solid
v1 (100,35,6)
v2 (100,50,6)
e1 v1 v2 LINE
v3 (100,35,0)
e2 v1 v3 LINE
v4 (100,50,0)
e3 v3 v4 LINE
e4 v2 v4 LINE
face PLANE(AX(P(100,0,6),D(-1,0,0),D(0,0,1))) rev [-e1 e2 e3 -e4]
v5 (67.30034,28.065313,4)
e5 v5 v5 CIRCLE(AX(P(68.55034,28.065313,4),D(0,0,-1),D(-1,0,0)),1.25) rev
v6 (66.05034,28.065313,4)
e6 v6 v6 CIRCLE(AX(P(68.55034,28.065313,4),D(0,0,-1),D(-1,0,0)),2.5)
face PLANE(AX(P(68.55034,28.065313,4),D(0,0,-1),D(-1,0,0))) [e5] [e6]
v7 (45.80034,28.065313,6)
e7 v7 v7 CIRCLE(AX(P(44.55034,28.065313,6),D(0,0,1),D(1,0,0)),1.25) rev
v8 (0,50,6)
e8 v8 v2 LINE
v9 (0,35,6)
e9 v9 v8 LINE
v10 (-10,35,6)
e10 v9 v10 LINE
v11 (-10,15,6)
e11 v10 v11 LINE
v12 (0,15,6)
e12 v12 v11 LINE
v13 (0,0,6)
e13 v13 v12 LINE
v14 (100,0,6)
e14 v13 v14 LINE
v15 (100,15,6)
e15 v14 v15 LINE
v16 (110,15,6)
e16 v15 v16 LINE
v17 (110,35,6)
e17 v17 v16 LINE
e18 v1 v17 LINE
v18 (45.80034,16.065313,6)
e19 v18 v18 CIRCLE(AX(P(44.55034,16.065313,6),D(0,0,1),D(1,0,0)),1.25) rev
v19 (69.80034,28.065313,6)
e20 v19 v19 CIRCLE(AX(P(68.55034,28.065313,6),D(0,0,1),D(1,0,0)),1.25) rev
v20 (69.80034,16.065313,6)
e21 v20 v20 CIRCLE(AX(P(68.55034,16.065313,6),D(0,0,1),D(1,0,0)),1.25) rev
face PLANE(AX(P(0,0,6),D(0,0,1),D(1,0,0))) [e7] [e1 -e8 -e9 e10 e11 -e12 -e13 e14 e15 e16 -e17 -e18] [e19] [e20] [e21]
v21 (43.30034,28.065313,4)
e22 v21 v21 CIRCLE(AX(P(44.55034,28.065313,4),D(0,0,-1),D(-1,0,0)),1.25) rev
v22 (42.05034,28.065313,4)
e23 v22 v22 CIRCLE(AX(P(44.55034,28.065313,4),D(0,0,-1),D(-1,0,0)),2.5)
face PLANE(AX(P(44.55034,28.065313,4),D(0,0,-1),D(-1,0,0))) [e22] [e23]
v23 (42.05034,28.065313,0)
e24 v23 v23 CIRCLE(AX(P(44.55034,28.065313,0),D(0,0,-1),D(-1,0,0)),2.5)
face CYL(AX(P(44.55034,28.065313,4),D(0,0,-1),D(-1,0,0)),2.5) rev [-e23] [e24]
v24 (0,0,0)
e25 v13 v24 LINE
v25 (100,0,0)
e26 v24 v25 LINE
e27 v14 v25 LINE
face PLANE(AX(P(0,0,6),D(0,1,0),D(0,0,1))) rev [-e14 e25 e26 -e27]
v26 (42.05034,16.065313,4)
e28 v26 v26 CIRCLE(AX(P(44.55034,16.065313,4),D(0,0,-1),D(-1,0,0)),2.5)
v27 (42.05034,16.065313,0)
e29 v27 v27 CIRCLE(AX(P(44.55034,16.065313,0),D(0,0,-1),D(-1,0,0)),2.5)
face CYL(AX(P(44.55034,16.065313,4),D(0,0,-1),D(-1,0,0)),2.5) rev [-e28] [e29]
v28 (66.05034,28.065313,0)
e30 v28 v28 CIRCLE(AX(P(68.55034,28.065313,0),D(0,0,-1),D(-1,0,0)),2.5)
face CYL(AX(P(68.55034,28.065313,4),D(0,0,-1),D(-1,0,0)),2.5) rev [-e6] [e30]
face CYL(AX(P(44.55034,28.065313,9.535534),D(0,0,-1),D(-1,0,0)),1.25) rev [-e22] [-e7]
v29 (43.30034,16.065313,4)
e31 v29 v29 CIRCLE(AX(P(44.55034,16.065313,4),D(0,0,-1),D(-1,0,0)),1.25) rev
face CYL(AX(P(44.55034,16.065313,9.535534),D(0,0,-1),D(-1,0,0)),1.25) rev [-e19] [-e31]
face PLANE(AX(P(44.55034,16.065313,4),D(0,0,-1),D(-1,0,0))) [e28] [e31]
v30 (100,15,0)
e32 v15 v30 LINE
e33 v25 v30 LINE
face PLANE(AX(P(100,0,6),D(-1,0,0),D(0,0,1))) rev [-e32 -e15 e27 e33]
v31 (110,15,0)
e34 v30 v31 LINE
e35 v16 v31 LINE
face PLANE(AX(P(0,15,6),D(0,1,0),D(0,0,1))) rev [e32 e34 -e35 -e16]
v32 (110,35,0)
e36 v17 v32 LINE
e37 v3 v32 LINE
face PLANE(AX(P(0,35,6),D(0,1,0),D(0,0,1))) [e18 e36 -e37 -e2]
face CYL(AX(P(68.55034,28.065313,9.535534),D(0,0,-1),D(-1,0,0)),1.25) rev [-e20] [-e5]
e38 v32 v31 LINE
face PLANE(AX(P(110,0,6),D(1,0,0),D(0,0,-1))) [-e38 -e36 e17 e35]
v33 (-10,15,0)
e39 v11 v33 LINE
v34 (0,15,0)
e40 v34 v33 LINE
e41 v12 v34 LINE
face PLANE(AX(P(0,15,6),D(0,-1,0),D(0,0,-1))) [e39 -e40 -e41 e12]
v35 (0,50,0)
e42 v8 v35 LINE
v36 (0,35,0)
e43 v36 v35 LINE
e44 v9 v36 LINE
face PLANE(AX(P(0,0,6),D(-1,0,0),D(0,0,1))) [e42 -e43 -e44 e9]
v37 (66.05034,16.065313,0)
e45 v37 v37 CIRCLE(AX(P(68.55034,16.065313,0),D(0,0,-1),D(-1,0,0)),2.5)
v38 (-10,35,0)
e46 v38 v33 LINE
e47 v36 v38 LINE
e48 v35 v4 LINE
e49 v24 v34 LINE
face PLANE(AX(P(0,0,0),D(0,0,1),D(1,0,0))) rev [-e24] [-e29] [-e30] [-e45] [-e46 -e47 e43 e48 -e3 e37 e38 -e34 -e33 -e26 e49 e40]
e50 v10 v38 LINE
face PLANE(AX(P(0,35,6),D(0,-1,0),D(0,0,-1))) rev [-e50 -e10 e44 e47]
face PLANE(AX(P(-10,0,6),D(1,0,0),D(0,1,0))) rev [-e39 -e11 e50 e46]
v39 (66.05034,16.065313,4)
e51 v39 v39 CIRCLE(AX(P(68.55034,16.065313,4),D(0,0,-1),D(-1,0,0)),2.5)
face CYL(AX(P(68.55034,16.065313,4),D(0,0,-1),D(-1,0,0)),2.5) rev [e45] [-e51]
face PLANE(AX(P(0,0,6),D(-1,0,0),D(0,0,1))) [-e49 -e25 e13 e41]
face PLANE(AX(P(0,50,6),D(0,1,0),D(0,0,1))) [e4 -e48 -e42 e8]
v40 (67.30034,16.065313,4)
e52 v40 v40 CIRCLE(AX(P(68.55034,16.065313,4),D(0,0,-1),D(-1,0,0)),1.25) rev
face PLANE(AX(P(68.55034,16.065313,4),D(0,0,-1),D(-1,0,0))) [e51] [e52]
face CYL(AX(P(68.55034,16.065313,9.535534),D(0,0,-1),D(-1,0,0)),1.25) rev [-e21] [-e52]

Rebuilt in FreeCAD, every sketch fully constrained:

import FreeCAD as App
import Part
import Sketcher
from FreeCAD import Vector

doc = App.newDocument("Part")
body = doc.addObject("PartDesign::Body", "Body")

# Sketch on XY plane
sketch1 = doc.addObject("Sketcher::SketchObject", "Sketch")
body.addObject(sketch1)
sketch1.AttachmentSupport = (doc.XY_Plane, [""])
sketch1.MapMode = "FlatFace"
sketch1.addGeometry([
    Part.LineSegment(Vector(-10, 35, 0), Vector(-10, 15, 0)),  # 0
    Part.LineSegment(Vector(-10, 15, 0), Vector(0, 15, 0)),  # 1
    Part.LineSegment(Vector(0, 15, 0), Vector(0, 0, 0)),  # 2
    Part.LineSegment(Vector(0, 0, 0), Vector(100, 0, 0)),  # 3
    Part.LineSegment(Vector(100, 0, 0), Vector(100, 15, 0)),  # 4
    Part.LineSegment(Vector(100, 15, 0), Vector(110, 15, 0)),  # 5
    Part.LineSegment(Vector(110, 15, 0), Vector(110, 35, 0)),  # 6
    Part.LineSegment(Vector(110, 35, 0), Vector(100, 35, 0)),  # 7
    Part.LineSegment(Vector(100, 35, 0), Vector(100, 50, 0)),  # 8
    Part.LineSegment(Vector(100, 50, 0), Vector(0, 50, 0)),  # 9
    Part.LineSegment(Vector(0, 50, 0), Vector(0, 35, 0)),  # 10
    Part.LineSegment(Vector(0, 35, 0), Vector(-10, 35, 0)),  # 11
], False)
sketch1.addConstraint([
    Sketcher.Constraint("Coincident", 0, 2, 1, 1),
    Sketcher.Constraint("Coincident", 1, 2, 2, 1),
    Sketcher.Constraint("Coincident", 2, 2, 3, 1),
    Sketcher.Constraint("Coincident", 3, 2, 4, 1),
    Sketcher.Constraint("Coincident", 4, 2, 5, 1),
    Sketcher.Constraint("Coincident", 5, 2, 6, 1),
    Sketcher.Constraint("Coincident", 6, 2, 7, 1),
    Sketcher.Constraint("Coincident", 7, 2, 8, 1),
    Sketcher.Constraint("Coincident", 8, 2, 9, 1),
    Sketcher.Constraint("Coincident", 9, 2, 10, 1),
    Sketcher.Constraint("Coincident", 10, 2, 11, 1),
    Sketcher.Constraint("Coincident", 11, 2, 0, 1),
    Sketcher.Constraint("Vertical", 0),
    Sketcher.Constraint("Horizontal", 1),
    Sketcher.Constraint("Vertical", 2),
    Sketcher.Constraint("Horizontal", 3),
    Sketcher.Constraint("Vertical", 4),
    Sketcher.Constraint("Horizontal", 5),
    Sketcher.Constraint("Vertical", 6),
    Sketcher.Constraint("Horizontal", 7),
    Sketcher.Constraint("Vertical", 8),
    Sketcher.Constraint("Horizontal", 9),
    Sketcher.Constraint("Vertical", 10),
    Sketcher.Constraint("Horizontal", 11),
    Sketcher.Constraint("Coincident", 2, 2, -1, 1),
    Sketcher.Constraint("PointOnObject", 9, 2, -2),
    Sketcher.Constraint("Horizontal", 1, 2, 4, 2),
    Sketcher.Constraint("Horizontal", 7, 2, 10, 2),
    Sketcher.Constraint("Vertical", 4, 2, 7, 2),
    Sketcher.Constraint("Equal", 1, 5),
    Sketcher.Constraint("Equal", 4, 8),
    Sketcher.Constraint("DistanceX", 1, 1, 1, 2, 10.0),
    Sketcher.Constraint("DistanceX", 3, 1, 3, 2, 100.0),
    Sketcher.Constraint("DistanceY", 0, 2, 0, 1, 20.0),
    Sketcher.Constraint("DistanceY", 2, 2, 2, 1, 15.0),
])
pad1 = doc.addObject("PartDesign::Pad", "Pad")
body.addObject(pad1)
pad1.Profile = sketch1
pad1.Length = 6

# Sketch on XY plane
sketch2 = doc.addObject("Sketcher::SketchObject", "Sketch001")
body.addObject(sketch2)
sketch2.AttachmentSupport = (doc.XY_Plane, [""])
sketch2.MapMode = "FlatFace"
sketch2.addGeometry([
    Part.Circle(Vector(44.6, 16.1, 0), Vector(0, 0, 1), 1.2),
    Part.Circle(Vector(44.6, 28.1, 0), Vector(0, 0, 1), 1.2),
    Part.Circle(Vector(68.6, 28.1, 0), Vector(0, 0, 1), 1.2),
    Part.Circle(Vector(68.6, 16.1, 0), Vector(0, 0, 1), 1.2),
], False)
sketch2.addConstraint([
    Sketcher.Constraint("Equal", 0, 1),
    Sketcher.Constraint("Equal", 1, 2),
    Sketcher.Constraint("Equal", 2, 3),
    Sketcher.Constraint("Horizontal", 1, 3, 2, 3),
    Sketcher.Constraint("Horizontal", 0, 3, 3, 3),
    Sketcher.Constraint("Vertical", 0, 3, 1, 3),
    Sketcher.Constraint("Vertical", 2, 3, 3, 3),
    Sketcher.Constraint("Diameter", 0, 2.5),
    Sketcher.Constraint("DistanceY", 0, 3, 1, 3, 12.0),
    Sketcher.Constraint("DistanceX", 1, 3, 2, 3, 24.0),
    Sketcher.Constraint("DistanceX", -1, 1, 0, 3, 44.55034),
    Sketcher.Constraint("DistanceY", -1, 1, 0, 3, 16.065313),
])
pocket1 = doc.addObject("PartDesign::Pocket", "Pocket")
body.addObject(pocket1)
pocket1.Profile = sketch2
pocket1.Length = 6
pocket1.Reversed = True

# Sketch on XY plane
sketch3 = doc.addObject("Sketcher::SketchObject", "Sketch002")
body.addObject(sketch3)
sketch3.AttachmentSupport = (doc.XY_Plane, [""])
sketch3.MapMode = "FlatFace"
sketch3.addGeometry([
    Part.Circle(Vector(68.6, 28.1, 0), Vector(0, 0, 1), 2.5),
    Part.Circle(Vector(44.6, 28.1, 0), Vector(0, 0, 1), 2.5),
    Part.Circle(Vector(44.6, 16.1, 0), Vector(0, 0, 1), 2.5),
    Part.Circle(Vector(68.6, 16.1, 0), Vector(0, 0, 1), 2.5),
], False)
sketch3.addConstraint([
    Sketcher.Constraint("Equal", 0, 1),
    Sketcher.Constraint("Equal", 1, 2),
    Sketcher.Constraint("Equal", 2, 3),
    Sketcher.Constraint("Horizontal", 0, 3, 1, 3),
    Sketcher.Constraint("Horizontal", 2, 3, 3, 3),
    Sketcher.Constraint("Vertical", 1, 3, 2, 3),
    Sketcher.Constraint("Vertical", 0, 3, 3, 3),
    Sketcher.Constraint("Diameter", 0, 5.0),
    Sketcher.Constraint("DistanceX", 1, 3, 0, 3, 24.0),
    Sketcher.Constraint("DistanceY", 2, 3, 1, 3, 12.0),
    Sketcher.Constraint("DistanceX", -1, 1, 0, 3, 68.55034),
    Sketcher.Constraint("DistanceY", -1, 1, 0, 3, 28.065313),
])
pocket2 = doc.addObject("PartDesign::Pocket", "Pocket001")
body.addObject(pocket2)
pocket2.Profile = sketch3
pocket2.Length = 4
pocket2.Reversed = True

doc.recompute()
